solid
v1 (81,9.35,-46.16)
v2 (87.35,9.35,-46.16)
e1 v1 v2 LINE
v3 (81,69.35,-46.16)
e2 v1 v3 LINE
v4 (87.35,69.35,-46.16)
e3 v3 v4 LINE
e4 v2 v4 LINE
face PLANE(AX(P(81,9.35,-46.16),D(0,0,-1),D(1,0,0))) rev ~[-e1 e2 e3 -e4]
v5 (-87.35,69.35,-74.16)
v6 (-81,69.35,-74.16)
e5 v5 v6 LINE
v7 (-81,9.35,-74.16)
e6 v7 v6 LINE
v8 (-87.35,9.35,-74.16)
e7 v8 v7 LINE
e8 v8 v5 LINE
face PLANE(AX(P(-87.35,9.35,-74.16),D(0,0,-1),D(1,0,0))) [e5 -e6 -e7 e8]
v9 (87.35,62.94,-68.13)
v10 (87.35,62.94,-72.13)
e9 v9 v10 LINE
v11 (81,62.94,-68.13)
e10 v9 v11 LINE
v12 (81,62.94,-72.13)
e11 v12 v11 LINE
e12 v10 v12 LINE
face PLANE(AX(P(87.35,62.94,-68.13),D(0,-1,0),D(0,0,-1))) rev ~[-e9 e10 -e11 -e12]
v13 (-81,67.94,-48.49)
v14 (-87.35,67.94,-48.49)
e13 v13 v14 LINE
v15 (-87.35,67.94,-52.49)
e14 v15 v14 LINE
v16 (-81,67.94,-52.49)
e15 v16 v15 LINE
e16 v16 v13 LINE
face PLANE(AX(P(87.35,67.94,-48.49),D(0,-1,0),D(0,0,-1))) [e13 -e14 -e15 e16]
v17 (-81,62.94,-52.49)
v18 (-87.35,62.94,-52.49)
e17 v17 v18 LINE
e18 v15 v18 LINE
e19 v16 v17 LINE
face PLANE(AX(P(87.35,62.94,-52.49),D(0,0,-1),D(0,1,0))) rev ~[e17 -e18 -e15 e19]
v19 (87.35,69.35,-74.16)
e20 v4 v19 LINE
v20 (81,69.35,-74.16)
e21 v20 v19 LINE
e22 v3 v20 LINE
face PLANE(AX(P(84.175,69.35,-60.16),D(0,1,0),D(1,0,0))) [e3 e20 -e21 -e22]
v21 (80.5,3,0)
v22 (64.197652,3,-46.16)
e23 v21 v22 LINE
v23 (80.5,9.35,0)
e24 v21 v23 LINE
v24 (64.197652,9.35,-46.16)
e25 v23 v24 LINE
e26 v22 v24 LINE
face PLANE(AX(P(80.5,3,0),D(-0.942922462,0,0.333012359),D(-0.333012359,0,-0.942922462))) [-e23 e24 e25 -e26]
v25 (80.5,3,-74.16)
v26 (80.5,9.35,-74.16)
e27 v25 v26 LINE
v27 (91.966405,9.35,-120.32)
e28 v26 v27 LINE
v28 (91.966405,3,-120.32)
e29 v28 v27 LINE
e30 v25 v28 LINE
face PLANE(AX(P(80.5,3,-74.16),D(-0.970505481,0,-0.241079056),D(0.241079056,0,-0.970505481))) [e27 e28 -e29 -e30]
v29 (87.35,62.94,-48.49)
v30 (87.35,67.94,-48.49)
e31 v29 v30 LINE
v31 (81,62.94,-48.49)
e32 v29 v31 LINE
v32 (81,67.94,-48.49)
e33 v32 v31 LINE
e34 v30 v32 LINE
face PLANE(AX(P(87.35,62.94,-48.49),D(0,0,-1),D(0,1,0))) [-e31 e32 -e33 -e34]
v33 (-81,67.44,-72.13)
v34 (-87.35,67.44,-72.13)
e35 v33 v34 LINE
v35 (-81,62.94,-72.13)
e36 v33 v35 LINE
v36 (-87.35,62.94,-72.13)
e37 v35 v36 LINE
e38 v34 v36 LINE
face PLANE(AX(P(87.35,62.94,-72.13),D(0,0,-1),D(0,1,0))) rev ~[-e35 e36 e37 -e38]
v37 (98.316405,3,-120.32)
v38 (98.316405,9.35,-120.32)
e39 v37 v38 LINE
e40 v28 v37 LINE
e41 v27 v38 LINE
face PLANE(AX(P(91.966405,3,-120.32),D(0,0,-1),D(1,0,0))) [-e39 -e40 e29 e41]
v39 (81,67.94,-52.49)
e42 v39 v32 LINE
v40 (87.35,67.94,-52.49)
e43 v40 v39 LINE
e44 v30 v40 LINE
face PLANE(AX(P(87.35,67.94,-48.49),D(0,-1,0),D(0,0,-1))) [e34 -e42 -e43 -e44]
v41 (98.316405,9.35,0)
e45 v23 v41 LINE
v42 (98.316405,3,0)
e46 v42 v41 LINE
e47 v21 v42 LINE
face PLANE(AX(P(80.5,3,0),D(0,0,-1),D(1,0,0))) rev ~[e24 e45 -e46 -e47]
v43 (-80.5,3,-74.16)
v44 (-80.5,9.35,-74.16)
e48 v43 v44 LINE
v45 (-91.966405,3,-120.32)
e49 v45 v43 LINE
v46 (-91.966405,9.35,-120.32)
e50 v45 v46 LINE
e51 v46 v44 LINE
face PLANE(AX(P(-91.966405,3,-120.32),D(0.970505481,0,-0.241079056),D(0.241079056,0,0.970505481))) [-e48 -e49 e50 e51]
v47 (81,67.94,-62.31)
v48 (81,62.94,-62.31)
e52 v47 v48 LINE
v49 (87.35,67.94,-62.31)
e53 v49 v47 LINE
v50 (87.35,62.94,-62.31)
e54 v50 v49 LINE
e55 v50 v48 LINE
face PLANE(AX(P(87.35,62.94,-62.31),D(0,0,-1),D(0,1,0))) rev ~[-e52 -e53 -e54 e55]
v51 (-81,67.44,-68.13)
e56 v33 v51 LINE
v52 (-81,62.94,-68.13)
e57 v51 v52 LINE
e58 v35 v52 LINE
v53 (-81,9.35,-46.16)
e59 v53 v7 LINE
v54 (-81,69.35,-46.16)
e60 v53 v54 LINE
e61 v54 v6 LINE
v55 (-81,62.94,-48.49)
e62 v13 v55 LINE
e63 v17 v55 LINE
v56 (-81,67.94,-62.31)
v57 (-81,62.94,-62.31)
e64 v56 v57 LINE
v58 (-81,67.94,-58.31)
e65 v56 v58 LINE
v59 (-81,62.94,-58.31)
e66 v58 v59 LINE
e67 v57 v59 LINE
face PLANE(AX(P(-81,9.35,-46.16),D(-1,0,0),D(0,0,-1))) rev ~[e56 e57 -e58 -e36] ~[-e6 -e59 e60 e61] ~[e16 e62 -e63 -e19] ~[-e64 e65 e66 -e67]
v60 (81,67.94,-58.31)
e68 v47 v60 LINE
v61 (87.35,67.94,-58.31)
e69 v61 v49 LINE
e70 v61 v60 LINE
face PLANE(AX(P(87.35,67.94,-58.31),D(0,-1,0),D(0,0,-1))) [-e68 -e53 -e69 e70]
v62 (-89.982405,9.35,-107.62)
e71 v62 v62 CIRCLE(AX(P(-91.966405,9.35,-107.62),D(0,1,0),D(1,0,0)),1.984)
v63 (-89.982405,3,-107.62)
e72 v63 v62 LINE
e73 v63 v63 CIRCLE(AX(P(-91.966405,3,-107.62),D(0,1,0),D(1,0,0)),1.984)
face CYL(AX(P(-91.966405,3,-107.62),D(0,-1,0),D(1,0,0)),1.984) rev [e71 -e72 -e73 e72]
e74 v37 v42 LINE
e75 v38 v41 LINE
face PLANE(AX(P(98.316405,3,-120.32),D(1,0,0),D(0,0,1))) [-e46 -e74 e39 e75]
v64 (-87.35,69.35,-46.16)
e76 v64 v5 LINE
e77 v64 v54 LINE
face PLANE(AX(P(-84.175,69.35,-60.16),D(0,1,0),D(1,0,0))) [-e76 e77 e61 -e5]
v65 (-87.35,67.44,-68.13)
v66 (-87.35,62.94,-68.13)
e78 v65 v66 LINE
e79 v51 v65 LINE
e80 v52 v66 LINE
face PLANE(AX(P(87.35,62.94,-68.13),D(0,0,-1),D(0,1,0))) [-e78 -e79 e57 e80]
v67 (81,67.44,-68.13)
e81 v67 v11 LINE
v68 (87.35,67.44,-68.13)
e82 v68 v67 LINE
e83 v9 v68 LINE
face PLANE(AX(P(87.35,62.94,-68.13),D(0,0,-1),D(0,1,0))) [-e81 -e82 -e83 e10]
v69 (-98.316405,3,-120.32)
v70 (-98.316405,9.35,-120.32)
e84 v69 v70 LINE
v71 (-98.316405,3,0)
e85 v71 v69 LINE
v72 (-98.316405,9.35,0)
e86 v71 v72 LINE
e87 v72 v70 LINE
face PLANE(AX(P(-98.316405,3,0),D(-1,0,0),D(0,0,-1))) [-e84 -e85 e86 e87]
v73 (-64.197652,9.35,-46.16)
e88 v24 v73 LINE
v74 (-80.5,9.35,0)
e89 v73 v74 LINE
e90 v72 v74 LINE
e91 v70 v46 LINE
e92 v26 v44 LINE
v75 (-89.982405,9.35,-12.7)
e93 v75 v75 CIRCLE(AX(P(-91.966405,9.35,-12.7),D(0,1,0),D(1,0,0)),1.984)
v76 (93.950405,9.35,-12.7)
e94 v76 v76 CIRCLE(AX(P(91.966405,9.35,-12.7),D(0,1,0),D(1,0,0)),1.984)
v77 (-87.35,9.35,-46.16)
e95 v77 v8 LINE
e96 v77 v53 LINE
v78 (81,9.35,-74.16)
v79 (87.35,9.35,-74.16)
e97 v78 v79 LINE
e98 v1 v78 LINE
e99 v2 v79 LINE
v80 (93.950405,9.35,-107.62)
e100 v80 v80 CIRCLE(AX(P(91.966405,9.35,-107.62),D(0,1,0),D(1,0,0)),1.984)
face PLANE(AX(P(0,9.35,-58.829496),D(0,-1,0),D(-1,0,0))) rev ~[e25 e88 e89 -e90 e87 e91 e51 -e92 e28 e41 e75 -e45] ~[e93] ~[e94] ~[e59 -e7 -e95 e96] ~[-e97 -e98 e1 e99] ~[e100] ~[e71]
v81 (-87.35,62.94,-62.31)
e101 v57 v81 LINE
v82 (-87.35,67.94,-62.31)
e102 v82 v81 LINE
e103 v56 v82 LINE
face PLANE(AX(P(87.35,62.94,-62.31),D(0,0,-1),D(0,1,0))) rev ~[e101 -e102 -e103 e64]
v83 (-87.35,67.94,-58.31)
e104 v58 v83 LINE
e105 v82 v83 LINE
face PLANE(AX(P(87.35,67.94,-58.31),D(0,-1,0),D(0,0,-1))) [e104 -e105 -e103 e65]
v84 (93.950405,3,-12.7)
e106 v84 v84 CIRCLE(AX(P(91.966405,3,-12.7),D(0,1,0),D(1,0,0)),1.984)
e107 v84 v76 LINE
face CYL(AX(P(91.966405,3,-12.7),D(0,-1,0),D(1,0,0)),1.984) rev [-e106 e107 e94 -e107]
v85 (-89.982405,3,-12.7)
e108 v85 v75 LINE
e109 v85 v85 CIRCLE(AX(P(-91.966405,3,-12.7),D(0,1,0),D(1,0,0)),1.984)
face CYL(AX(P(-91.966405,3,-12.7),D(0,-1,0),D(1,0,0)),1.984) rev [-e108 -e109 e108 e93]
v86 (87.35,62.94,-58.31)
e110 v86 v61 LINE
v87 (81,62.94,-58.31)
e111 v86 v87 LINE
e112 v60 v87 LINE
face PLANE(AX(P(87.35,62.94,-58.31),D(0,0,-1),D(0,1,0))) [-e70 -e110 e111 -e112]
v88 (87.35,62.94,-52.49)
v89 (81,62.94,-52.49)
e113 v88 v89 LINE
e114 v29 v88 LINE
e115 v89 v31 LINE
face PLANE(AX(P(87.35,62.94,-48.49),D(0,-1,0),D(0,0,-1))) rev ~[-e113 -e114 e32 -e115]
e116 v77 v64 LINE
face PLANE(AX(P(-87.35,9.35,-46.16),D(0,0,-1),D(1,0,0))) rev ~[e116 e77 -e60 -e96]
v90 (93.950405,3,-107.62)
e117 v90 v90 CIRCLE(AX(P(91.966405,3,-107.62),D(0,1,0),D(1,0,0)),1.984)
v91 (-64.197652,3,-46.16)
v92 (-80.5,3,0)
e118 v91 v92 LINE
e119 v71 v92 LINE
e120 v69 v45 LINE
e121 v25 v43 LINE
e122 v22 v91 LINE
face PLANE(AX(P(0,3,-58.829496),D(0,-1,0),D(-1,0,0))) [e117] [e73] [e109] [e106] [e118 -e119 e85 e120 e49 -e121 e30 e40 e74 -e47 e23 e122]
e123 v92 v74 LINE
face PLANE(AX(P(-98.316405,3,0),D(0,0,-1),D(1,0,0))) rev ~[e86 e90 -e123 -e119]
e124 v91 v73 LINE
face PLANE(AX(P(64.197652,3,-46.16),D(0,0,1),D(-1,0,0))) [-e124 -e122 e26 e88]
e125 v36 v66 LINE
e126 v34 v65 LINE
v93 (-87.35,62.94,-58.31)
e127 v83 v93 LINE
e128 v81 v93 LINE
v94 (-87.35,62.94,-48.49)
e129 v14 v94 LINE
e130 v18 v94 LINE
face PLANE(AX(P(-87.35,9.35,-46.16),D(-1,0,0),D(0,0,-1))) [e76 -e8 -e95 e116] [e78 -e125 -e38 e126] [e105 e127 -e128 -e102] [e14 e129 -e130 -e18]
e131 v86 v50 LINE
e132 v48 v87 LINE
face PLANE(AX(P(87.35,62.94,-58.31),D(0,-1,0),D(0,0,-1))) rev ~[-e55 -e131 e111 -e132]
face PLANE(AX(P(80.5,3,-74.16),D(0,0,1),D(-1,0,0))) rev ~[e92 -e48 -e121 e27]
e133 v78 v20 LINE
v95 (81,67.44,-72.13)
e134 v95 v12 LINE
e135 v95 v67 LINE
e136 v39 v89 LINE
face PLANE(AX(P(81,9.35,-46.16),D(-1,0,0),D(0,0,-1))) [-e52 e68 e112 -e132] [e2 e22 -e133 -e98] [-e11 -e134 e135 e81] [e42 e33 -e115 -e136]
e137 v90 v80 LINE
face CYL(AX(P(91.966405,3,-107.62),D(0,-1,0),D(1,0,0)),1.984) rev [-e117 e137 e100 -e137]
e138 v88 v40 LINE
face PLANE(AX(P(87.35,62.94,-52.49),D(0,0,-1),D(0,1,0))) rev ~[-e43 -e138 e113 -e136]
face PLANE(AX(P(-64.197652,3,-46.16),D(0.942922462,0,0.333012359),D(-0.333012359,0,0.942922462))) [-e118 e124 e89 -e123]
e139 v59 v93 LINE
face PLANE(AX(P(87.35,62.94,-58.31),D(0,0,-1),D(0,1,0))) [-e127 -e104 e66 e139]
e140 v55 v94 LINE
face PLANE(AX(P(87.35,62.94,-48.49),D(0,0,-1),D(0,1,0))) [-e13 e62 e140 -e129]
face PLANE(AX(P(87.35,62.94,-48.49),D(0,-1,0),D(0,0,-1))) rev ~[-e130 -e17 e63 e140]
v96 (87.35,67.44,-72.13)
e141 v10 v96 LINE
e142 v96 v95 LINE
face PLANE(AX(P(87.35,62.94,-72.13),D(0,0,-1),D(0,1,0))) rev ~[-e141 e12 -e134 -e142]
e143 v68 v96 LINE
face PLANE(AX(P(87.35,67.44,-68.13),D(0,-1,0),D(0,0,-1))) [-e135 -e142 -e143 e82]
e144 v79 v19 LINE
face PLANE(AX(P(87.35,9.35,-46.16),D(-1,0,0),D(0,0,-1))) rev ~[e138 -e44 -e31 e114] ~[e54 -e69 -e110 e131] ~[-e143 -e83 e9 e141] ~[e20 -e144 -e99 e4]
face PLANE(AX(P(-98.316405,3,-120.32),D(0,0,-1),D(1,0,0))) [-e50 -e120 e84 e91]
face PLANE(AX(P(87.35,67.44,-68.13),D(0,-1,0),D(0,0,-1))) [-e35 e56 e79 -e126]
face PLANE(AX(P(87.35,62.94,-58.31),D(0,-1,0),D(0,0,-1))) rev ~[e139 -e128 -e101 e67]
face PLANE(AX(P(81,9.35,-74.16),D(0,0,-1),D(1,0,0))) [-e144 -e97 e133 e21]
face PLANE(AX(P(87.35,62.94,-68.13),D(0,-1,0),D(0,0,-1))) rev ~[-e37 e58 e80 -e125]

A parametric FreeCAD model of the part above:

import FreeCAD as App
import Part
import Sketcher
from FreeCAD import Vector
Q = App.Units.Quantity

doc = App.newDocument("Part")
body = doc.addObject("PartDesign::Body", "Body")

# Sketch on XZ plane
sketch1 = doc.addObject("Sketcher::SketchObject", "Sketch")
body.addObject(sketch1)
sketch1.AttachmentSupport = (doc.XZ_Plane, [""])
sketch1.MapMode = "FlatFace"
sketch1.AttachmentOffset = App.Placement(Vector(0, 0, -3), App.Rotation())
sketch1.addGeometry([
    Part.LineSegment(Vector(80.5, 0, 0), Vector(98.3, 0, 0)),  # 0
    Part.LineSegment(Vector(98.3, 0, 0), Vector(98.3, -120.3, 0)),  # 1
    Part.LineSegment(Vector(98.3, -120.3, 0), Vector(92, -120.3, 0)),  # 2
    Part.LineSegment(Vector(92, -120.3, 0), Vector(80.5, -74.2, 0)),  # 3
    Part.LineSegment(Vector(80.5, -74.2, 0), Vector(-80.5, -74.2, 0)),  # 4
    Part.LineSegment(Vector(-80.5, -74.2, 0), Vector(-92, -120.3, 0)),  # 5
    Part.LineSegment(Vector(-92, -120.3, 0), Vector(-98.3, -120.3, 0)),  # 6
    Part.LineSegment(Vector(-98.3, -120.3, 0), Vector(-98.3, 0, 0)),  # 7
    Part.LineSegment(Vector(-98.3, 0, 0), Vector(-80.5, 0, 0)),  # 8
    Part.LineSegment(Vector(-80.5, 0, 0), Vector(-64.2, -46.2, 0)),  # 9
    Part.LineSegment(Vector(-64.2, -46.2, 0), Vector(64.2, -46.2, 0)),  # 10
    Part.LineSegment(Vector(64.2, -46.2, 0), Vector(80.5, 0, 0)),  # 11
    Part.Circle(Vector(92, -12.7, 0), Vector(0, 0, 1), 2),  # 12
    Part.Circle(Vector(-92, -12.7, 0), Vector(0, 0, 1), 2),  # 13
    Part.Circle(Vector(92, -107.6, 0), Vector(0, 0, 1), 2),  # 14
    Part.Circle(Vector(-92, -107.6, 0), Vector(0, 0, 1), 2),  # 15
], False)
sketch1.addConstraint([
    Sketcher.Constraint("Coincident", 0, 2, 1, 1),
    Sketcher.Constraint("Coincident", 1, 2, 2, 1),
    Sketcher.Constraint("Coincident", 2, 2, 3, 1),
    Sketcher.Constraint("Coincident", 3, 2, 4, 1),
    Sketcher.Constraint("Coincident", 4, 2, 5, 1),
    Sketcher.Constraint("Coincident", 5, 2, 6, 1),
    Sketcher.Constraint("Coincident", 6, 2, 7, 1),
    Sketcher.Constraint("Coincident", 7, 2, 8, 1),
    Sketcher.Constraint("Coincident", 8, 2, 9, 1),
    Sketcher.Constraint("Coincident", 9, 2, 10, 1),
    Sketcher.Constraint("Coincident", 10, 2, 11, 1),
    Sketcher.Constraint("Coincident", 11, 2, 0, 1),
    Sketcher.Constraint("Horizontal", 0),
    Sketcher.Constraint("Vertical", 1),
    Sketcher.Constraint("Horizontal", 2),
    Sketcher.Constraint("Horizontal", 4),
    Sketcher.Constraint("Horizontal", 6),
    Sketcher.Constraint("Vertical", 7),
    Sketcher.Constraint("Horizontal", 8),
    Sketcher.Constraint("Horizontal", 10),
    Sketcher.Constraint("Equal", 12, 13),
    Sketcher.Constraint("Equal", 13, 14),
    Sketcher.Constraint("Equal", 14, 15),
    Sketcher.Constraint("Symmetric", 0, 2, 7, 2, -1, 1),
    Sketcher.Constraint("Symmetric", 12, 3, 13, 3, -2),
    Sketcher.Constraint("Symmetric", 14, 3, 15, 3, -2),
    Sketcher.Constraint("Symmetric", 2, 2, 5, 2, -2),
    Sketcher.Constraint("Symmetric", 8, 2, 11, 2, -2),
    Sketcher.Constraint("Vertical", 12, 3, 14, 3),
    Sketcher.Constraint("Vertical", 14, 3, 2, 2),
    Sketcher.Constraint("Vertical", 4, 2, 8, 2),
    Sketcher.Constraint("Vertical", 3, 2, 11, 2),
    Sketcher.Constraint("Equal", 9, 11),
    Sketcher.Constraint("DistanceX", 4, 2, 4, 1, Q("161 mm")),
    Sketcher.Constraint("Diameter", 12, Q("3.968 mm")),
    Sketcher.Constraint("DistanceY", 4, 2, 9, 2, Q("28 mm")),
    Sketcher.Constraint("DistanceX", 2, 2, 2, 1, Q("6.35 mm")),
    Sketcher.Constraint("DistanceY", 1, 2, 1, 1, Q("120.32 mm")),
    Sketcher.Constraint("DistanceY", 12, 3, -1, 1, Q("12.7 mm")),
    Sketcher.Constraint("DistanceY", 1, 2, 14, 3, Q("12.7 mm")),
    Sketcher.Constraint("DistanceY", 3, 2, -1, 1, Q("74.16 mm")),
    Sketcher.Constraint("DistanceX", 0, 1, 0, 2, Q("17.816405 mm")),
    Sketcher.Constraint("DistanceX", 10, 1, 10, 2, Q("128.395303 mm")),
])
pad1 = doc.addObject("PartDesign::Pad", "Pad")
body.addObject(pad1)
pad1.Profile = sketch1
pad1.Length = 6.35
pad1.Reversed = True

# Sketch on XZ plane
sketch2 = doc.addObject("Sketcher::SketchObject", "Sketch001")
body.addObject(sketch2)
sketch2.AttachmentSupport = (doc.XZ_Plane, [""])
sketch2.MapMode = "FlatFace"
sketch2.AttachmentOffset = App.Placement(Vector(0, 0, -9.35), App.Rotation())
sketch2.addGeometry([
    Part.LineSegment(Vector(81, -74, 0), Vector(81, -46, 0)),  # 0
    Part.LineSegment(Vector(81, -46, 0), Vector(87, -46, 0)),  # 1
    Part.LineSegment(Vector(87, -46, 0), Vector(87, -74, 0)),  # 2
    Part.LineSegment(Vector(87, -74, 0), Vector(81, -74, 0)),  # 3
    Part.LineSegment(Vector(-87, -74, 0), Vector(-87, -46, 0)),  # 4
    Part.LineSegment(Vector(-87, -46, 0), Vector(-81, -46, 0)),  # 5
    Part.LineSegment(Vector(-81, -46, 0), Vector(-81, -74, 0)),  # 6
    Part.LineSegment(Vector(-81, -74, 0), Vector(-87, -74, 0)),  # 7
], False)
sketch2.addConstraint([
    Sketcher.Constraint("Coincident", 0, 2, 1, 1),
    Sketcher.Constraint("Coincident", 1, 2, 2, 1),
    Sketcher.Constraint("Coincident", 2, 2, 3, 1),
    Sketcher.Constraint("Coincident", 3, 2, 0, 1),
    Sketcher.Constraint("Coincident", 4, 2, 5, 1),
    Sketcher.Constraint("Coincident", 5, 2, 6, 1),
    Sketcher.Constraint("Coincident", 6, 2, 7, 1),
    Sketcher.Constraint("Coincident", 7, 2, 4, 1),
    Sketcher.Constraint("Vertical", 0),
    Sketcher.Constraint("Horizontal", 1),
    Sketcher.Constraint("Vertical", 2),
    Sketcher.Constraint("Horizontal", 3),
    Sketcher.Constraint("Vertical", 4),
    Sketcher.Constraint("Horizontal", 5),
    Sketcher.Constraint("Vertical", 6),
    Sketcher.Constraint("Horizontal", 7),
    Sketcher.Constraint("Symmetric", 1, 2, 4, 2, -2),
    Sketcher.Constraint("Symmetric", 3, 2, 6, 2, -2),
    Sketcher.Constraint("DistanceY", 0, 1, 0, 2, Q("28 mm")),
    Sketcher.Constraint("DistanceX", -1, 1, 0, 2, Q("81 mm")),
    Sketcher.Constraint("DistanceX", 1, 1, 1, 2, Q("6.35 mm")),
    Sketcher.Constraint("DistanceY", 0, 2, -1, 1, Q("46.16 mm")),
])
pad2 = doc.addObject("PartDesign::Pad", "Pad001")
body.addObject(pad2)
pad2.Profile = sketch2
pad2.Length = 60
pad2.Reversed = True

# Sketch on YZ plane
sketch3 = doc.addObject("Sketcher::SketchObject", "Sketch002")
body.addObject(sketch3)
sketch3.AttachmentSupport = (doc.YZ_Plane, [""])
sketch3.MapMode = "FlatFace"
sketch3.AttachmentOffset = App.Placement(Vector(0, 0, 87.35), App.Rotation())
sketch3.addGeometry([
    Part.LineSegment(Vector(67.9, -48.5, 0), Vector(62.9, -48.5, 0)),  # 0
    Part.LineSegment(Vector(62.9, -48.5, 0), Vector(62.9, -52.5, 0)),  # 1
    Part.LineSegment(Vector(62.9, -52.5, 0), Vector(67.9, -52.5, 0)),  # 2
    Part.LineSegment(Vector(67.9, -52.5, 0), Vector(67.9, -48.5, 0)),  # 3
    Part.LineSegment(Vector(67.9, -58.3, 0), Vector(62.9, -58.3, 0)),  # 4
    Part.LineSegment(Vector(62.9, -58.3, 0), Vector(62.9, -62.3, 0)),  # 5
    Part.LineSegment(Vector(62.9, -62.3, 0), Vector(67.9, -62.3, 0)),  # 6
    Part.LineSegment(Vector(67.9, -62.3, 0), Vector(67.9, -58.3, 0)),  # 7
    Part.LineSegment(Vector(67.4, -68.1, 0), Vector(62.9, -68.1, 0)),  # 8
    Part.LineSegment(Vector(62.9, -68.1, 0), Vector(62.9, -72.1, 0)),  # 9
    Part.LineSegment(Vector(62.9, -72.1, 0), Vector(67.4, -72.1, 0)),  # 10
    Part.LineSegment(Vector(67.4, -72.1, 0), Vector(67.4, -68.1, 0)),  # 11
], False)
sketch3.addConstraint([
    Sketcher.Constraint("Coincident", 0, 2, 1, 1),
    Sketcher.Constraint("Coincident", 1, 2, 2, 1),
    Sketcher.Constraint("Coincident", 2, 2, 3, 1),
    Sketcher.Constraint("Coincident", 3, 2, 0, 1),
    Sketcher.Constraint("Coincident", 4, 2, 5, 1),
    Sketcher.Constraint("Coincident", 5, 2, 6, 1),
    Sketcher.Constraint("Coincident", 6, 2, 7, 1),
    Sketcher.Constraint("Coincident", 7, 2, 4, 1),
    Sketcher.Constraint("Coincident", 8, 2, 9, 1),
    Sketcher.Constraint("Coincident", 9, 2, 10, 1),
    Sketcher.Constraint("Coincident", 10, 2, 11, 1),
    Sketcher.Constraint("Coincident", 11, 2, 8, 1),
    Sketcher.Constraint("Horizontal", 0),
    Sketcher.Constraint("Vertical", 1),
    Sketcher.Constraint("Horizontal", 2),
    Sketcher.Constraint("Vertical", 3),
    Sketcher.Constraint("Horizontal", 4),
    Sketcher.Constraint("Vertical", 5),
    Sketcher.Constraint("Horizontal", 6),
    Sketcher.Constraint("Vertical", 7),
    Sketcher.Constraint("Horizontal", 8),
    Sketcher.Constraint("Vertical", 9),
    Sketcher.Constraint("Horizontal", 10),
    Sketcher.Constraint("Vertical", 11),
    Sketcher.Constraint("Vertical", 1, 2, 4, 2),
    Sketcher.Constraint("Vertical", 3, 2, 6, 2),
    Sketcher.Constraint("Vertical", 5, 2, 8, 2),
    Sketcher.Constraint("Equal", 3, 5),
    Sketcher.Constraint("Equal", 7, 9),
    Sketcher.Constraint("DistanceX", 0, 2, 0, 1, Q("5 mm")),
    Sketcher.Constraint("DistanceY", 1, 2, 1, 1, Q("4 mm")),
    Sketcher.Constraint("DistanceX", 8, 2, 8, 1, Q("4.5 mm")),
    Sketcher.Constraint("DistanceX", -1, 1, 0, 2, Q("62.94 mm")),
    Sketcher.Constraint("DistanceY", 0, 2, -1, 1, Q("48.49 mm")),
    Sketcher.Constraint("DistanceY", 4, 2, -1, 1, Q("58.31 mm")),
    Sketcher.Constraint("DistanceY", 8, 2, -1, 1, Q("68.13 mm")),
])
pocket1 = doc.addObject("PartDesign::Pocket", "Pocket")
body.addObject(pocket1)
pocket1.Profile = sketch3
pocket1.Length = 250

doc.recompute()
